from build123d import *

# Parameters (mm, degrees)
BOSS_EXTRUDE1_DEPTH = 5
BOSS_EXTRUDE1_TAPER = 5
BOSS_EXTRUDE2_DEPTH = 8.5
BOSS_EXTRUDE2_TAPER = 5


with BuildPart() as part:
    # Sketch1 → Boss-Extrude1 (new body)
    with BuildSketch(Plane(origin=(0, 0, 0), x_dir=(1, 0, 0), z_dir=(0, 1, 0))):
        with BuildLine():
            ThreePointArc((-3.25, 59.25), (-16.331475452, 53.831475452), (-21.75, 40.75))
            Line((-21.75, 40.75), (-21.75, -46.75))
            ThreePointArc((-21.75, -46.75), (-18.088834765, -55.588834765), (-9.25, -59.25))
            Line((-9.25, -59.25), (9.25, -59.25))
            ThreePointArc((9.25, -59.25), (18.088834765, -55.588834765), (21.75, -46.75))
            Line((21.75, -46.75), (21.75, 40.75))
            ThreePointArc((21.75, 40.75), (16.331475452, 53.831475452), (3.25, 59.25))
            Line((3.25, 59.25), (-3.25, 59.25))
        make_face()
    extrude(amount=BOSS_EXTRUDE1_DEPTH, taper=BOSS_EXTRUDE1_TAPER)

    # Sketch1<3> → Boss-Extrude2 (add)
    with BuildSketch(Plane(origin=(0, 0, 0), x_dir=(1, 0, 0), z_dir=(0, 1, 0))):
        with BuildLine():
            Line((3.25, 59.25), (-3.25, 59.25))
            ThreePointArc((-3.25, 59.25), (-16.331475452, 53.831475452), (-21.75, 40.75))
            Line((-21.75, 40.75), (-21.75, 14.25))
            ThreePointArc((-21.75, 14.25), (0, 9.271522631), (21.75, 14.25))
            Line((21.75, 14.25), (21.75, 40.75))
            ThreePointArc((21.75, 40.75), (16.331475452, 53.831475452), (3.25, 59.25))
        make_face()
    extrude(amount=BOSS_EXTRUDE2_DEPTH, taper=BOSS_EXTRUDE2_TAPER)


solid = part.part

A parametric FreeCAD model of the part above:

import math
import FreeCAD as App
import Part
import Sketcher

doc = App.newDocument("Part")
body = doc.addObject("PartDesign::Body", "Body")

# Sketch on XZ plane
sketch1 = body.newObject("Sketcher::SketchObject", "Sketch")
sketch1.AttachmentSupport = (doc.getObject("XZ_Plane"), [""])
sketch1.MapMode = "FlatFace"
sketch1.addGeometry(Part.ArcOfCircle(Part.Circle(App.Vector(-3.25, -40.75, 0), App.Vector(0, 0, 1), 18.5), math.radians(180), math.radians(270)), False)
sketch1.addGeometry(Part.LineSegment(App.Vector(-21.75, -40.75, 0), App.Vector(-21.75, 46.75, 0)), False)
sketch1.addGeometry(Part.ArcOfCircle(Part.Circle(App.Vector(-9.25, 46.75, 0), App.Vector(0, 0, 1), 12.5), math.radians(90), math.radians(180)), False)
sketch1.addGeometry(Part.LineSegment(App.Vector(-9.25, 59.25, 0), App.Vector(9.25, 59.25, 0)), False)
sketch1.addGeometry(Part.ArcOfCircle(Part.Circle(App.Vector(9.25, 46.75, 0), App.Vector(0, 0, 1), 12.5), math.radians(0), math.radians(90)), False)
sketch1.addGeometry(Part.LineSegment(App.Vector(21.75, 46.75, 0), App.Vector(21.75, -40.75, 0)), False)
sketch1.addGeometry(Part.ArcOfCircle(Part.Circle(App.Vector(3.25, -40.75, 0), App.Vector(0, 0, 1), 18.5), math.radians(-90), math.radians(0)), False)
sketch1.addGeometry(Part.LineSegment(App.Vector(3.25, -59.25, 0), App.Vector(-3.25, -59.25, 0)), False)
sketch1.addConstraint(Sketcher.Constraint("Tangent", 0, 1, 1, 1))
sketch1.addConstraint(Sketcher.Constraint("Tangent", 1, 2, 2, 2))
sketch1.addConstraint(Sketcher.Constraint("Tangent", 2, 1, 3, 1))
sketch1.addConstraint(Sketcher.Constraint("Tangent", 3, 2, 4, 2))
sketch1.addConstraint(Sketcher.Constraint("Tangent", 4, 1, 5, 1))
sketch1.addConstraint(Sketcher.Constraint("Tangent", 5, 2, 6, 2))
sketch1.addConstraint(Sketcher.Constraint("Tangent", 6, 1, 7, 1))
sketch1.addConstraint(Sketcher.Constraint("Tangent", 7, 2, 0, 2))
sketch1.addConstraint(Sketcher.Constraint("Vertical", 1))
sketch1.addConstraint(Sketcher.Constraint("Horizontal", 3))
sketch1.addConstraint(Sketcher.Constraint("Vertical", 5))
sketch1.addConstraint(Sketcher.Constraint("Horizontal", 7))
sketch1.addConstraint(Sketcher.Constraint("Equal", 2, 4))
sketch1.addConstraint(Sketcher.Constraint("Equal", 0, 6))
sketch1.addConstraint(Sketcher.Constraint("Radius", 0, 18.5))
sketch1.addConstraint(Sketcher.Constraint("Radius", 2, 12.5))
sketch1.addConstraint(Sketcher.Constraint("DistanceX", 3, 1, 3, 2, 18.5))
sketch1.addConstraint(Sketcher.Constraint("DistanceY", 1, 1, 1, 2, 87.5))
sketch1.addConstraint(Sketcher.Constraint("DistanceX", 0, 3, -1, 1, 3.25))
sketch1.addConstraint(Sketcher.Constraint("DistanceY", 0, 3, -1, 1, 40.75))
pad1 = body.newObject("PartDesign::Pad", "Pad")
pad1.Profile = sketch1
pad1.Length = 5
pad1.Reversed = True
pad1.TaperAngle = -5

# Sketch on XZ plane
sketch2 = body.newObject("Sketcher::SketchObject", "Sketch001")
sketch2.AttachmentSupport = (doc.getObject("XZ_Plane"), [""])
sketch2.MapMode = "FlatFace"
sketch2.addGeometry(Part.LineSegment(App.Vector(3.25, -59.25, 0), App.Vector(-3.25, -59.25, 0)), False)
sketch2.addGeometry(Part.ArcOfCircle(Part.Circle(App.Vector(-3.25, -40.75, 0), App.Vector(0, 0, 1), 18.5), math.radians(180), math.radians(270)), False)
sketch2.addGeometry(Part.LineSegment(App.Vector(-21.75, -40.75, 0), App.Vector(-21.75, -14.25, 0)), False)
sketch2.addGeometry(Part.ArcOfCircle(Part.Circle(App.Vector(0, -59.271523, 0), App.Vector(0, 0, 1), 50), math.radians(64.214706), math.radians(115.785294)), False)
sketch2.addGeometry(Part.LineSegment(App.Vector(21.75, -14.25, 0), App.Vector(21.75, -40.75, 0)), False)
sketch2.addGeometry(Part.ArcOfCircle(Part.Circle(App.Vector(3.25, -40.75, 0), App.Vector(0, 0, 1), 18.5), math.radians(-90), math.radians(0)), False)
sketch2.addConstraint(Sketcher.Constraint("Tangent", 0, 2, 1, 2))
sketch2.addConstraint(Sketcher.Constraint("Tangent", 1, 1, 2, 1))
sketch2.addConstraint(Sketcher.Constraint("Coincident", 2, 2, 3, 2))
sketch2.addConstraint(Sketcher.Constraint("Coincident", 3, 1, 4, 1))
sketch2.addConstraint(Sketcher.Constraint("Tangent", 4, 2, 5, 2))
sketch2.addConstraint(Sketcher.Constraint("Tangent", 5, 1, 0, 1))
sketch2.addConstraint(Sketcher.Constraint("Horizontal", 0))
sketch2.addConstraint(Sketcher.Constraint("Vertical", 2))
sketch2.addConstraint(Sketcher.Constraint("Vertical", 4))
sketch2.addConstraint(Sketcher.Constraint("Equal", 1, 5))
sketch2.addConstraint(Sketcher.Constraint("Symmetric", 2, 2, 3, 1, -2))
sketch2.addConstraint(Sketcher.Constraint("Radius", 3, 50.0))
sketch2.addConstraint(Sketcher.Constraint("Radius", 1, 18.5))
sketch2.addConstraint(Sketcher.Constraint("DistanceX", 0, 2, 0, 1, 6.5))
sketch2.addConstraint(Sketcher.Constraint("DistanceY", 2, 1, 2, 2, 26.5))
sketch2.addConstraint(Sketcher.Constraint("DistanceY", 1, 3, -1, 1, 40.75))
pad2 = body.newObject("PartDesign::Pad", "Pad001")
pad2.Profile = sketch2
pad2.Length = 8.5
pad2.Reversed = True
pad2.TaperAngle = -5

doc.recompute()
